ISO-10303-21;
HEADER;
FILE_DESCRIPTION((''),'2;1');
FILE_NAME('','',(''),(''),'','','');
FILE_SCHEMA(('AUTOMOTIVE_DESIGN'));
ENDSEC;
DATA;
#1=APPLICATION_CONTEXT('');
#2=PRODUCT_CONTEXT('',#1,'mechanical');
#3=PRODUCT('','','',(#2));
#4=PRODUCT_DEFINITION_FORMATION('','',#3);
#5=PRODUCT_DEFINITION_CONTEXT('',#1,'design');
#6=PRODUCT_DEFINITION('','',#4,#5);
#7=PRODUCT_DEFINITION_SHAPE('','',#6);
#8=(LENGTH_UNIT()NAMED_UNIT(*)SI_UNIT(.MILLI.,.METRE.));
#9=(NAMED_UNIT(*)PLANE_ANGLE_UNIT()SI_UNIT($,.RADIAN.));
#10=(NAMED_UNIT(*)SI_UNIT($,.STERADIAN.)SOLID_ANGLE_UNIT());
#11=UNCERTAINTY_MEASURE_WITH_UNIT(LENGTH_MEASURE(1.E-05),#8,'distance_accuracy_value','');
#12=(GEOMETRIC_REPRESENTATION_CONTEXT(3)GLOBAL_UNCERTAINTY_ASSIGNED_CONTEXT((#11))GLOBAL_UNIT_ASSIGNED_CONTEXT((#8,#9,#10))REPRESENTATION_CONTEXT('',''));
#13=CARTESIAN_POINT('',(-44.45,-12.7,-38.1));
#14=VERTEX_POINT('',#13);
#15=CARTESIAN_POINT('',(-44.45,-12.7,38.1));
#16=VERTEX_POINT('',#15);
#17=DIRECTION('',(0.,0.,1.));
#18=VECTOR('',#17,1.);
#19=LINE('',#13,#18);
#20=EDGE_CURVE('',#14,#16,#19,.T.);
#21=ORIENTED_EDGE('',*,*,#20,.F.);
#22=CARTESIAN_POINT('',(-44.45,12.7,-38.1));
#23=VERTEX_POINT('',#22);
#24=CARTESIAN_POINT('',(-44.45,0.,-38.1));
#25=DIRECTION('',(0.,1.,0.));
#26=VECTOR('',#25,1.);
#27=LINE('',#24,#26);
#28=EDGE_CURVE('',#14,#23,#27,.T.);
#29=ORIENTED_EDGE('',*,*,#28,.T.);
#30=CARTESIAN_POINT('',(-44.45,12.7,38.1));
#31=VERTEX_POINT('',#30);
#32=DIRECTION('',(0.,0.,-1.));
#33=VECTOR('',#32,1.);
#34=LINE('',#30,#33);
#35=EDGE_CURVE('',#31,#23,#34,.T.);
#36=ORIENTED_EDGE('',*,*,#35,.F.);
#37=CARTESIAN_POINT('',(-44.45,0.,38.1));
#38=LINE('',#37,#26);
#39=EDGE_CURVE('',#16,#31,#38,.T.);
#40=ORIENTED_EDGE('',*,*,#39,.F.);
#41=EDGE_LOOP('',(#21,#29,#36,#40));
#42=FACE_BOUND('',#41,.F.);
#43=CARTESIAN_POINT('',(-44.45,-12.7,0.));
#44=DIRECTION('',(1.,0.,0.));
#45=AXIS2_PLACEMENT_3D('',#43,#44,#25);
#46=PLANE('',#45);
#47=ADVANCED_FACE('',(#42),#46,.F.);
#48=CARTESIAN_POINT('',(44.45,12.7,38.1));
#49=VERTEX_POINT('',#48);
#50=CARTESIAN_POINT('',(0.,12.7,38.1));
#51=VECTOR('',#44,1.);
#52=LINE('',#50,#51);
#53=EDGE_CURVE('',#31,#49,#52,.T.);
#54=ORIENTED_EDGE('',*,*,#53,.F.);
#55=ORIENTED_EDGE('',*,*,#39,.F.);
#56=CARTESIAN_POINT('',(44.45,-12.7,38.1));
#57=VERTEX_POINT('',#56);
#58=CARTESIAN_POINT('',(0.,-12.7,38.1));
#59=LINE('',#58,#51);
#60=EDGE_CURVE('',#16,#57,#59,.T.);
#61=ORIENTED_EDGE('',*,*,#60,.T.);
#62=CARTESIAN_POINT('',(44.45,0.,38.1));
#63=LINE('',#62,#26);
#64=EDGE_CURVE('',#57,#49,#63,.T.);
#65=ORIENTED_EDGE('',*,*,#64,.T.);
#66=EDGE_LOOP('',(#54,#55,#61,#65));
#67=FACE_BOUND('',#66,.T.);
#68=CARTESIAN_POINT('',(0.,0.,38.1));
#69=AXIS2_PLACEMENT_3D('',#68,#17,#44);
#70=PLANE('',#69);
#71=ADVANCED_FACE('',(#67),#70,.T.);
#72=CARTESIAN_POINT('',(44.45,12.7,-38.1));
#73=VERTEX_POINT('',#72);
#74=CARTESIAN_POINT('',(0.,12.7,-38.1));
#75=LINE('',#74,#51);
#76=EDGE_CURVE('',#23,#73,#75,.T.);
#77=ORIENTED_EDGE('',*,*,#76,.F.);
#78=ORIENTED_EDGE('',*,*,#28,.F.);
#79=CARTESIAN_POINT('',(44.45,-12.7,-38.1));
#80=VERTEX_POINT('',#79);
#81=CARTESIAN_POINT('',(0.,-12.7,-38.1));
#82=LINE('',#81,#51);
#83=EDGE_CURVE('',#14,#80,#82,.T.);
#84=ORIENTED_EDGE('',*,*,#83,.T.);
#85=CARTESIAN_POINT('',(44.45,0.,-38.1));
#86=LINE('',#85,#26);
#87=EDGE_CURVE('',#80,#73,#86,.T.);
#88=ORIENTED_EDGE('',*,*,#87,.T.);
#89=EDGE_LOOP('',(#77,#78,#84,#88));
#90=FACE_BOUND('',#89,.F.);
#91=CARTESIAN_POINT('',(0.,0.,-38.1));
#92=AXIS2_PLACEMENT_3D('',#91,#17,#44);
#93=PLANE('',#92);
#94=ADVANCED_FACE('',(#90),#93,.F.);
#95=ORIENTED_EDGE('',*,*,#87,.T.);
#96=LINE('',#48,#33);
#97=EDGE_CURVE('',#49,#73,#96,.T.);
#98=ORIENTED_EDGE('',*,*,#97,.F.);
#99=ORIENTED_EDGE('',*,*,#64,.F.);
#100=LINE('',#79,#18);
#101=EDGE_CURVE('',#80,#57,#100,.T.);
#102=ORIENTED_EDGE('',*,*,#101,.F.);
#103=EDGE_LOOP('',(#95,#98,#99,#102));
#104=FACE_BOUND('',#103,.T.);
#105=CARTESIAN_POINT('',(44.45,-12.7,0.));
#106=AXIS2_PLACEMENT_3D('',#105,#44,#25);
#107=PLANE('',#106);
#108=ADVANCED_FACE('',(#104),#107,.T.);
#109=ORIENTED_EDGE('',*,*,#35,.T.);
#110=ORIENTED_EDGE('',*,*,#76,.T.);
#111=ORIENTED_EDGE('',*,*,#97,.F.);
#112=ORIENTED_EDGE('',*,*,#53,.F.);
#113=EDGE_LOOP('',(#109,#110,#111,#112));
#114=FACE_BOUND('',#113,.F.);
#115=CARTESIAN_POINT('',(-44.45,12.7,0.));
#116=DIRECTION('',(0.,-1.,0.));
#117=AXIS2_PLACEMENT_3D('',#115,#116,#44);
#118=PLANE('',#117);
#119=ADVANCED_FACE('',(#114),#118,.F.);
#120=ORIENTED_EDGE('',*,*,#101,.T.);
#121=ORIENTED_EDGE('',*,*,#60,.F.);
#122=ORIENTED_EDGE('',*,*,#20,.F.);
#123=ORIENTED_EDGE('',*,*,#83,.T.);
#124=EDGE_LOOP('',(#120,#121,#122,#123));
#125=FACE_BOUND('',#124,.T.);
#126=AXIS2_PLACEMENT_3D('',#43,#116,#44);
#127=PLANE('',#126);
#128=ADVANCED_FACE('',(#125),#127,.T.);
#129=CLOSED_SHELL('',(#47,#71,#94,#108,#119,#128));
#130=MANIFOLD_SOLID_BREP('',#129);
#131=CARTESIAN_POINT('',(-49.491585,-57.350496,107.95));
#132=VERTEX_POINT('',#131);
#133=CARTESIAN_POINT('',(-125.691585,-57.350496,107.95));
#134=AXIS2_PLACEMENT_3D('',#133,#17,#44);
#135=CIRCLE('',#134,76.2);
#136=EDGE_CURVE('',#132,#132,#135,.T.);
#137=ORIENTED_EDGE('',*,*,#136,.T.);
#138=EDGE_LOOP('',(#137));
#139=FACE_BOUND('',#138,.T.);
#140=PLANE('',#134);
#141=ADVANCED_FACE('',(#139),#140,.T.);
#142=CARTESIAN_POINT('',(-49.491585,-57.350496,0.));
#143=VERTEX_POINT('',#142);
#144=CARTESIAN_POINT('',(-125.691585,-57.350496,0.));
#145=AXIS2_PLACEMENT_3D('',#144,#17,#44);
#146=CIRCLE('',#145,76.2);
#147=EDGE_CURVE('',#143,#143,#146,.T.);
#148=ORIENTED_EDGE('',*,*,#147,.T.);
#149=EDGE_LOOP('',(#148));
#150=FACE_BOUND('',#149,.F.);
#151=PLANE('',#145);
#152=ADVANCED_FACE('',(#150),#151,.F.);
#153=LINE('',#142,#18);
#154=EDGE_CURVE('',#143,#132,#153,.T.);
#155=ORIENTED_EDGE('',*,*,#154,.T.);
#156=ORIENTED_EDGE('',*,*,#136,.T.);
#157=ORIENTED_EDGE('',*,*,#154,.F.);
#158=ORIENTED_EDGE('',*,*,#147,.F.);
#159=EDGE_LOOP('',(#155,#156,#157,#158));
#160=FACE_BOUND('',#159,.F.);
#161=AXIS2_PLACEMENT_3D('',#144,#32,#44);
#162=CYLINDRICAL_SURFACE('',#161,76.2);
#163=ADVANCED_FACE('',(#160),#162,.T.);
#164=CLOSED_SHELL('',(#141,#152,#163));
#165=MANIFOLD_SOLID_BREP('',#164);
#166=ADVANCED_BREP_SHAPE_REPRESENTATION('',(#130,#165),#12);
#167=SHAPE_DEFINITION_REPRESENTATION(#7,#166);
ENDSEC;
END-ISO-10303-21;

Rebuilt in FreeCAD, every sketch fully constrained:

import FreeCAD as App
import Part
import Sketcher
from FreeCAD import Vector
Q = App.Units.Quantity

doc = App.newDocument("Part")
body = doc.addObject("PartDesign::Body", "Body")

sketch1 = body.newObject("Sketcher::SketchObject", "Sketch")
sketch1.AttachmentSupport = (doc.getObject("XY_Plane"), [""])
sketch1.MapMode = "FlatFace"
sketch1.addGeometry(Part.LineSegment(Vector(-44, 13, 0), Vector(-44, -13, 0)), False)
sketch1.addGeometry(Part.LineSegment(Vector(-44, -13, 0), Vector(44, -13, 0)), False)
sketch1.addGeometry(Part.LineSegment(Vector(44, -13, 0), Vector(44, 13, 0)), False)
sketch1.addGeometry(Part.LineSegment(Vector(44, 13, 0), Vector(-44, 13, 0)), False)
sketch1.addConstraint(Sketcher.Constraint("Coincident", 0, 2, 1, 1))
sketch1.addConstraint(Sketcher.Constraint("Coincident", 1, 2, 2, 1))
sketch1.addConstraint(Sketcher.Constraint("Coincident", 2, 2, 3, 1))
sketch1.addConstraint(Sketcher.Constraint("Coincident", 3, 2, 0, 1))
sketch1.addConstraint(Sketcher.Constraint("Vertical", 0))
sketch1.addConstraint(Sketcher.Constraint("Horizontal", 1))
sketch1.addConstraint(Sketcher.Constraint("Vertical", 2))
sketch1.addConstraint(Sketcher.Constraint("Horizontal", 3))
sketch1.addConstraint(Sketcher.Constraint("Symmetric", 0, 2, 2, 2, -1, 1))
sketch1.addConstraint(Sketcher.Constraint("DistanceY", 0, 2, 0, 1, Q("1 in")))
sketch1.addConstraint(Sketcher.Constraint("DistanceX", 1, 1, 1, 2, Q("3.5 in")))
pad1 = body.newObject("PartDesign::Pad", "Pad")
pad1.Profile = sketch1
pad1.Length = Q("3 in")
pad1.Midplane = True
body2 = doc.addObject("PartDesign::Body", "Body001")

sketch2 = body2.newObject("Sketcher::SketchObject", "Sketch001")
sketch2.AttachmentSupport = (doc.getObject("XY_Plane001"), [""])
sketch2.MapMode = "FlatFace"
sketch2.addGeometry(Part.Circle(Vector(-126, -57, 0), Vector(0, 0, 1), 76), False)
sketch2.addConstraint(Sketcher.Constraint("Diameter", 0, Q("6 in")))
sketch2.addConstraint(Sketcher.Constraint("DistanceX", 0, 3, -1, 1, Q("125.691585 mm")))
sketch2.addConstraint(Sketcher.Constraint("DistanceY", 0, 3, -1, 1, Q("57.350496 mm")))
pad2 = body2.newObject("PartDesign::Pad", "Pad001")
pad2.Profile = sketch2
pad2.Length = Q("4.25 in")

doc.recompute()
